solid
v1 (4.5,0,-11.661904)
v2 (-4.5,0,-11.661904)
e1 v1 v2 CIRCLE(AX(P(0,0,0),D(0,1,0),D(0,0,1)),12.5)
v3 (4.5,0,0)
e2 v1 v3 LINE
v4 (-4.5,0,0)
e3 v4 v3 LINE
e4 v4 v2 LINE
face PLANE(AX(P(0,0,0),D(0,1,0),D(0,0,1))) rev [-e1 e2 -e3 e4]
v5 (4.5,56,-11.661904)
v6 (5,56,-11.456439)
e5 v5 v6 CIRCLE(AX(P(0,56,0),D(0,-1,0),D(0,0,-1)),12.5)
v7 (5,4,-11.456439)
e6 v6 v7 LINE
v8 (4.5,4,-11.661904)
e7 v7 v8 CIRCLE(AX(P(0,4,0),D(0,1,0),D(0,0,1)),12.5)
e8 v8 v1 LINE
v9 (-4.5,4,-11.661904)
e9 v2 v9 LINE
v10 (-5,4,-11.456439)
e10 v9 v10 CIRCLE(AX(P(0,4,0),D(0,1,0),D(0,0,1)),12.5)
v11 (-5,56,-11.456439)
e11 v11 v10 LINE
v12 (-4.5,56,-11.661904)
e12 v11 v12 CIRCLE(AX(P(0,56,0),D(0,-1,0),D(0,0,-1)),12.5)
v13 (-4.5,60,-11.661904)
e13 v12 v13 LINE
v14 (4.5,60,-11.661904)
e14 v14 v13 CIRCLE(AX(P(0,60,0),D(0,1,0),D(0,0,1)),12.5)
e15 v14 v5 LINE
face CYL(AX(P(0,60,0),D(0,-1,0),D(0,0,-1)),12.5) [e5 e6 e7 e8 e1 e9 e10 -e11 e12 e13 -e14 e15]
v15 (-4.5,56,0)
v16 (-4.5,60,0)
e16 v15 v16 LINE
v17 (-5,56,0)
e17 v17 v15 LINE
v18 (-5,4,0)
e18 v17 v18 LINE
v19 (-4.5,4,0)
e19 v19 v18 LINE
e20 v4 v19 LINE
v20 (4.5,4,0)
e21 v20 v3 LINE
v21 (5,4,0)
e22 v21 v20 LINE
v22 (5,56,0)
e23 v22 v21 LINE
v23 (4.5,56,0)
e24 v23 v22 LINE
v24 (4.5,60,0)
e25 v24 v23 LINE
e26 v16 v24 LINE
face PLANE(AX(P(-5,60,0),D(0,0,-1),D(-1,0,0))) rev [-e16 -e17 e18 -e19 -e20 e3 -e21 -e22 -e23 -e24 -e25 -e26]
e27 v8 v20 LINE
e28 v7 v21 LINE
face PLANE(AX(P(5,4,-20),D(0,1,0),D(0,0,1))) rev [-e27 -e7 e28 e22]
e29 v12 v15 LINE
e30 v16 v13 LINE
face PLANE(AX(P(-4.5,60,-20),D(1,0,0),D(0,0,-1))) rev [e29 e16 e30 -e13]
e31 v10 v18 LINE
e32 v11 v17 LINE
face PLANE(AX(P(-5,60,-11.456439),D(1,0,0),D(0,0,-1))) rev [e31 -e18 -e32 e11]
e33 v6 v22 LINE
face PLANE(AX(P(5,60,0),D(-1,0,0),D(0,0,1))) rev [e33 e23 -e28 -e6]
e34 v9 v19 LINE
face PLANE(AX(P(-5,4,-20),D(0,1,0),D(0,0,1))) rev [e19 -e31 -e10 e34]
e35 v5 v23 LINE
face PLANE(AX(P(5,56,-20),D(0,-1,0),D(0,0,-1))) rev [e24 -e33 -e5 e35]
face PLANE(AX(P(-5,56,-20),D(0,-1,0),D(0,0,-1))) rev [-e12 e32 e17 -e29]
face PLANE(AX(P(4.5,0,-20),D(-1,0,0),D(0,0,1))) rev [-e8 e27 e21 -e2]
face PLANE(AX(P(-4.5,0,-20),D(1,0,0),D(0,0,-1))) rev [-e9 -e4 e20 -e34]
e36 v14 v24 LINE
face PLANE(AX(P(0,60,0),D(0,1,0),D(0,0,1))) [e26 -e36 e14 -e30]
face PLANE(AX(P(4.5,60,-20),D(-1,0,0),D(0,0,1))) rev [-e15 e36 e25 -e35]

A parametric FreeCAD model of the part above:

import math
import FreeCAD as App
import Part
import Sketcher

V = App.Vector


def add_polygon(sketch, points):
    """Adds a closed chain of lines whose ends are joined by coincident constraints."""
    first, n = sketch.GeometryCount, len(points)
    for a, b in zip(points, points[1:] + points[:1]):
        sketch.addGeometry(Part.LineSegment(App.Vector(*a, 0), App.Vector(*b, 0)), False)
    for i in range(n):
        sketch.addConstraint(Sketcher.Constraint("Coincident", first + i, 2, first + (i + 1) % n, 1))

doc = App.newDocument("Part")
body = doc.addObject("PartDesign::Body", "Body")

# Sketch on XZ plane
sketch1 = doc.addObject("Sketcher::SketchObject", "Sketch")
body.addObject(sketch1)
sketch1.AttachmentSupport = (doc.XZ_Plane, [""])
sketch1.MapMode = "FlatFace"
sketch1.addGeometry(Part.LineSegment(V(-5, 0, 0), V(5, 0, 0)), False)
sketch1.addGeometry(Part.LineSegment(V(5, 0, 0), V(5, -11, 0)), False)
sketch1.addGeometry(Part.ArcOfCircle(Part.Circle(V(0, 0, 0), V(0, 0, 1), 12), math.radians(-114), math.radians(-66)), False)
sketch1.addGeometry(Part.LineSegment(V(-5, -11, 0), V(-5, 0, 0)), False)
sketch1.addConstraint(Sketcher.Constraint("Coincident", 0, 2, 1, 1))
sketch1.addConstraint(Sketcher.Constraint("Coincident", 1, 2, 2, 2))
sketch1.addConstraint(Sketcher.Constraint("Coincident", 2, 1, 3, 1))
sketch1.addConstraint(Sketcher.Constraint("Coincident", 3, 2, 0, 1))
sketch1.addConstraint(Sketcher.Constraint("Horizontal", 0))
sketch1.addConstraint(Sketcher.Constraint("Vertical", 1))
sketch1.addConstraint(Sketcher.Constraint("Vertical", 3))
sketch1.addConstraint(Sketcher.Constraint("Coincident", 2, 3, -1, 1))
sketch1.addConstraint(Sketcher.Constraint("Symmetric", 0, 2, 3, 2, -1, 1))
sketch1.addConstraint(Sketcher.Constraint("Radius", 2, 12.5))
sketch1.addConstraint(Sketcher.Constraint("DistanceX", 0, 1, 0, 2, 10.0))
pad1 = doc.addObject("PartDesign::Pad", "Pad")
body.addObject(pad1)
pad1.Profile = sketch1
pad1.Length = 60
pad1.Reversed = True

# Sketch on XY plane
sketch2 = doc.addObject("Sketcher::SketchObject", "Sketch001")
body.addObject(sketch2)
sketch2.AttachmentSupport = (doc.XY_Plane, [""])
sketch2.MapMode = "FlatFace"
add_polygon(sketch2, [(-5, 4), (-5, 0), (-4.5, 0), (-4.5, 4)])  # lines 0-3
add_polygon(sketch2, [(4.5, 4), (4.5, 0), (5, 0), (5, 4)])  # lines 4-7
add_polygon(sketch2, [(4.5, 60), (4.5, 56), (5, 56), (5, 60)])  # lines 8-11
add_polygon(sketch2, [(-5, 60), (-5, 56), (-4.5, 56), (-4.5, 60)])  # lines 12-15
sketch2.addConstraint(Sketcher.Constraint("Vertical", 0))
sketch2.addConstraint(Sketcher.Constraint("Horizontal", 1))
sketch2.addConstraint(Sketcher.Constraint("Vertical", 2))
sketch2.addConstraint(Sketcher.Constraint("Horizontal", 3))
sketch2.addConstraint(Sketcher.Constraint("Vertical", 4))
sketch2.addConstraint(Sketcher.Constraint("Horizontal", 5))
sketch2.addConstraint(Sketcher.Constraint("Vertical", 6))
sketch2.addConstraint(Sketcher.Constraint("Horizontal", 7))
sketch2.addConstraint(Sketcher.Constraint("Vertical", 8))
sketch2.addConstraint(Sketcher.Constraint("Horizontal", 9))
sketch2.addConstraint(Sketcher.Constraint("Vertical", 10))
sketch2.addConstraint(Sketcher.Constraint("Horizontal", 11))
sketch2.addConstraint(Sketcher.Constraint("Vertical", 12))
sketch2.addConstraint(Sketcher.Constraint("Horizontal", 13))
sketch2.addConstraint(Sketcher.Constraint("Vertical", 14))
sketch2.addConstraint(Sketcher.Constraint("Horizontal", 15))
sketch2.addConstraint(Sketcher.Constraint("Symmetric", 1, 2, 4, 2, -1, 1))
sketch2.addConstraint(Sketcher.Constraint("Symmetric", 0, 2, 5, 2, -2))
sketch2.addConstraint(Sketcher.Constraint("Symmetric", 9, 2, 12, 2, -2))
sketch2.addConstraint(Sketcher.Constraint("Symmetric", 11, 2, 14, 2, -2))
sketch2.addConstraint(Sketcher.Constraint("Horizontal", 3, 2, 6, 2))
sketch2.addConstraint(Sketcher.Constraint("Vertical", 7, 2, 8, 2))
sketch2.addConstraint(Sketcher.Constraint("Vertical", 6, 2, 9, 2))
sketch2.addConstraint(Sketcher.Constraint("Equal", 6, 8))
sketch2.addConstraint(Sketcher.Constraint("DistanceY", 0, 2, 0, 1, 4.0))
sketch2.addConstraint(Sketcher.Constraint("DistanceX", 1, 1, 1, 2, 0.5))
sketch2.addConstraint(Sketcher.Constraint("DistanceX", 0, 2, -1, 1, 5.0))
sketch2.addConstraint(Sketcher.Constraint("DistanceY", -1, 1, 8, 2, 56.0))
pocket1 = doc.addObject("PartDesign::Pocket", "Pocket")
body.addObject(pocket1)
pocket1.Profile = sketch2
pocket1.Length = 20

doc.recompute()
